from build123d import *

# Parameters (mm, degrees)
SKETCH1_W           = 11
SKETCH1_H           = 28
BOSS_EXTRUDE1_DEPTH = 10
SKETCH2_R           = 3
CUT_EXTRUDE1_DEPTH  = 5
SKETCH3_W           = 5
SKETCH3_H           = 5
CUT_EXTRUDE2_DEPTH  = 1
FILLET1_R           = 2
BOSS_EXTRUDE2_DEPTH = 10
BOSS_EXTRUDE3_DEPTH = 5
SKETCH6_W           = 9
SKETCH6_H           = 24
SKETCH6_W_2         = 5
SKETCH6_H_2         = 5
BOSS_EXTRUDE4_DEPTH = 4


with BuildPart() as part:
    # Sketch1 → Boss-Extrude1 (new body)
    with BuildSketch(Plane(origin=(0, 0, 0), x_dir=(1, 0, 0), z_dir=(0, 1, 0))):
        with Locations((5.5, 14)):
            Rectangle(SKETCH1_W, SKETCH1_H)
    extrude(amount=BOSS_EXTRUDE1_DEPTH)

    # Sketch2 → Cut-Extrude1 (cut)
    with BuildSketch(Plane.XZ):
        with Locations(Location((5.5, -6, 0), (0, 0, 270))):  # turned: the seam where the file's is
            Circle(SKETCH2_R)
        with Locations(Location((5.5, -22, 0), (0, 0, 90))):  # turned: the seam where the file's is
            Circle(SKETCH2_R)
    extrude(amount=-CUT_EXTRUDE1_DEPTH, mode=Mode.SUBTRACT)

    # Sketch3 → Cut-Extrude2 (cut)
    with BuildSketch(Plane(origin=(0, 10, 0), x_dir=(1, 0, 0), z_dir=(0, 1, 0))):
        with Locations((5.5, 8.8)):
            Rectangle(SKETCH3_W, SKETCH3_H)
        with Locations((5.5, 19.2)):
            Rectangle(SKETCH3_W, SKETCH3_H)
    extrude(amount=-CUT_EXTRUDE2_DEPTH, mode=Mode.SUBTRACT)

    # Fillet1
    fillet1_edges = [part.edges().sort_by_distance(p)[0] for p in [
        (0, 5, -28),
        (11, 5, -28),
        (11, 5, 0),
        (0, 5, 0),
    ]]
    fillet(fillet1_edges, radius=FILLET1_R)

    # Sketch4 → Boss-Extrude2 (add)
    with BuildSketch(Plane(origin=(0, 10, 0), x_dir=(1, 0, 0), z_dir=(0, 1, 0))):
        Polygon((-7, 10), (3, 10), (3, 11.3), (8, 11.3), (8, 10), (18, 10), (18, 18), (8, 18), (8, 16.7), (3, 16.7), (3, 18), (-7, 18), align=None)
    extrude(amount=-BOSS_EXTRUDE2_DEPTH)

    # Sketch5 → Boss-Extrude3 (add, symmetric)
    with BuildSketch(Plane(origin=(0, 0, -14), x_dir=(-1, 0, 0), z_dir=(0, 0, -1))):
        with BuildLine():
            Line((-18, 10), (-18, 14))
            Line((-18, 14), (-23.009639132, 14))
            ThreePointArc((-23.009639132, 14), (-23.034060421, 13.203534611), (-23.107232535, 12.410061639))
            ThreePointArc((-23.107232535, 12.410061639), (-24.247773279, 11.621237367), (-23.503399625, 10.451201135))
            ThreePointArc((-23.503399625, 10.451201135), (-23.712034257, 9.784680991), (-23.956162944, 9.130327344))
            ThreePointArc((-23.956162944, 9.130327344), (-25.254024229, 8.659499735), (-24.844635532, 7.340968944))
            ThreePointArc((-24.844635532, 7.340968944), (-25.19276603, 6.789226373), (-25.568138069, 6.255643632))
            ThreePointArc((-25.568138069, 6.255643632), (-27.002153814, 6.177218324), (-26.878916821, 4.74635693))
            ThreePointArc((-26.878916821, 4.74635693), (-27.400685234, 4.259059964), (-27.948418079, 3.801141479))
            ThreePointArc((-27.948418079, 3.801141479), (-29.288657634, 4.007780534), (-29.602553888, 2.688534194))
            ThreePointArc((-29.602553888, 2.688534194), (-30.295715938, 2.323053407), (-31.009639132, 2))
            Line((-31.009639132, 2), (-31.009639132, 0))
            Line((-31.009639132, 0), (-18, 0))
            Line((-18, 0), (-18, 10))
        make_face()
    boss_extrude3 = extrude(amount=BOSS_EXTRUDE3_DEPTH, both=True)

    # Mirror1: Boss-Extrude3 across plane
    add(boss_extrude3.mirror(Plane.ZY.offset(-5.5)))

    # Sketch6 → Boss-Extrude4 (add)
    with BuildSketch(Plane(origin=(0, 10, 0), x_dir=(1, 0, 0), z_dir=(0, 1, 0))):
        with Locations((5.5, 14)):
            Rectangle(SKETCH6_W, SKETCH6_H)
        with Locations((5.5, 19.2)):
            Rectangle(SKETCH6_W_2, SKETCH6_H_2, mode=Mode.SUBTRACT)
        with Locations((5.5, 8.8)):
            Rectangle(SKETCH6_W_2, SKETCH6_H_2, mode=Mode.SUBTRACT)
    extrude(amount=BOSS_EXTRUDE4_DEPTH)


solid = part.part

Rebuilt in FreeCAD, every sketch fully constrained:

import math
import FreeCAD as App
import Part
import Sketcher

V = App.Vector
Q = App.Units.Quantity


def edges_at(feature, points):
    """Names of the edges that pass closest to the given points."""
    edges = feature.Shape.Edges
    near = lambda p: min(range(len(edges)), key=lambda i: edges[i].distToShape(Part.Vertex(*p))[0])
    return sorted({f"Edge{near(p) + 1}" for p in points})

doc = App.newDocument("Part")
body = doc.addObject("PartDesign::Body", "Body")

# Sketch on XZ plane
sketch1 = doc.addObject("Sketcher::SketchObject", "Sketch")
body.addObject(sketch1)
sketch1.AttachmentSupport = (doc.XZ_Plane, [""])
sketch1.MapMode = "FlatFace"
sketch1.addGeometry([
    Part.LineSegment(V(0, -28, 0), V(0, 0, 0)),
    Part.LineSegment(V(0, 0, 0), V(11, 0, 0)),
    Part.LineSegment(V(11, 0, 0), V(11, -28, 0)),
    Part.LineSegment(V(11, -28, 0), V(0, -28, 0)),
], False)
sketch1.addConstraint([
    Sketcher.Constraint("Coincident", 0, 2, 1, 1),
    Sketcher.Constraint("Coincident", 1, 2, 2, 1),
    Sketcher.Constraint("Coincident", 2, 2, 3, 1),
    Sketcher.Constraint("Coincident", 3, 2, 0, 1),
    Sketcher.Constraint("Vertical", 0),
    Sketcher.Constraint("Horizontal", 1),
    Sketcher.Constraint("Vertical", 2),
    Sketcher.Constraint("Horizontal", 3),
    Sketcher.Constraint("Coincident", 0, 2, -1, 1),
    Sketcher.Constraint("DistanceX", 1, 1, 1, 2, Q("11 mm")),
    Sketcher.Constraint("DistanceY", 0, 1, 0, 2, Q("28 mm")),
])
pad1 = doc.addObject("PartDesign::Pad", "Pad")
body.addObject(pad1)
pad1.Profile = sketch1
pad1.Length = 10
pad1.Reversed = True

# Sketch on XZ plane
sketch2 = doc.addObject("Sketcher::SketchObject", "Sketch001")
body.addObject(sketch2)
sketch2.AttachmentSupport = (doc.XZ_Plane, [""])
sketch2.MapMode = "FlatFace"
sketch2.addGeometry([
    Part.Circle(V(5.5, -6, 0), V(0, 0, 1), 3),
    Part.Circle(V(5.5, -22, 0), V(0, 0, 1), 3),
], False)
sketch2.addConstraint([
    Sketcher.Constraint("Equal", 0, 1),
    Sketcher.Constraint("Vertical", 0, 3, 1, 3),
    Sketcher.Constraint("Diameter", 0, Q("6 mm")),
    Sketcher.Constraint("DistanceY", 0, 3, -1, 1, Q("6 mm")),
    Sketcher.Constraint("DistanceY", 1, 3, -1, 1, Q("22 mm")),
    Sketcher.Constraint("DistanceX", -1, 1, 0, 3, Q("5.5 mm")),
])
pocket1 = doc.addObject("PartDesign::Pocket", "Pocket")
body.addObject(pocket1)
pocket1.Profile = sketch2
pocket1.Length = 5

# Sketch on XZ plane
sketch3 = doc.addObject("Sketcher::SketchObject", "Sketch002")
body.addObject(sketch3)
sketch3.AttachmentSupport = (doc.XZ_Plane, [""])
sketch3.MapMode = "FlatFace"
sketch3.AttachmentOffset = App.Placement(V(0, 0, -10), App.Rotation())
sketch3.addGeometry([
    Part.LineSegment(V(3, -11, 0), V(3, -6, 0)),  # 0
    Part.LineSegment(V(3, -6, 0), V(8, -6, 0)),  # 1
    Part.LineSegment(V(8, -6, 0), V(8, -11, 0)),  # 2
    Part.LineSegment(V(8, -11, 0), V(3, -11, 0)),  # 3
    Part.LineSegment(V(3, -22, 0), V(3, -17, 0)),  # 4
    Part.LineSegment(V(3, -17, 0), V(8, -17, 0)),  # 5
    Part.LineSegment(V(8, -17, 0), V(8, -22, 0)),  # 6
    Part.LineSegment(V(8, -22, 0), V(3, -22, 0)),  # 7
], False)
sketch3.addConstraint([
    Sketcher.Constraint("Coincident", 0, 2, 1, 1),
    Sketcher.Constraint("Coincident", 1, 2, 2, 1),
    Sketcher.Constraint("Coincident", 2, 2, 3, 1),
    Sketcher.Constraint("Coincident", 3, 2, 0, 1),
    Sketcher.Constraint("Coincident", 4, 2, 5, 1),
    Sketcher.Constraint("Coincident", 5, 2, 6, 1),
    Sketcher.Constraint("Coincident", 6, 2, 7, 1),
    Sketcher.Constraint("Coincident", 7, 2, 4, 1),
    Sketcher.Constraint("Vertical", 0),
    Sketcher.Constraint("Horizontal", 1),
    Sketcher.Constraint("Vertical", 2),
    Sketcher.Constraint("Horizontal", 3),
    Sketcher.Constraint("Vertical", 4),
    Sketcher.Constraint("Horizontal", 5),
    Sketcher.Constraint("Vertical", 6),
    Sketcher.Constraint("Horizontal", 7),
    Sketcher.Constraint("Vertical", 3, 2, 4, 2),
    Sketcher.Constraint("Vertical", 2, 2, 5, 2),
    Sketcher.Constraint("Equal", 7, 0),
    Sketcher.Constraint("Equal", 2, 4),
    Sketcher.Constraint("DistanceX", 1, 1, 1, 2, Q("5 mm")),
    Sketcher.Constraint("DistanceX", -1, 1, 0, 2, Q("3 mm")),
    Sketcher.Constraint("DistanceY", 0, 2, -1, 1, Q("6.3 mm")),
    Sketcher.Constraint("DistanceY", 4, 2, -1, 1, Q("16.7 mm")),
])
pocket2 = doc.addObject("PartDesign::Pocket", "Pocket001")
body.addObject(pocket2)
pocket2.Profile = sketch3
pocket2.Length = 1
pocket2.Reversed = True
doc.recompute()

fillet = doc.addObject("PartDesign::Fillet", "Fillet")
body.addObject(fillet)
fillet.Base = (pocket2, edges_at(pocket2, [
    (0, 5, -28),
    (11, 5, -28),
    (11, 5, 0),
    (0, 5, 0),
]))
fillet.Radius = 2

# Sketch on XZ plane
sketch4 = doc.addObject("Sketcher::SketchObject", "Sketch003")
body.addObject(sketch4)
sketch4.AttachmentSupport = (doc.XZ_Plane, [""])
sketch4.MapMode = "FlatFace"
sketch4.AttachmentOffset = App.Placement(V(0, 0, -10), App.Rotation())
sketch4.addGeometry([
    Part.LineSegment(V(-7, -10, 0), V(3, -10, 0)),  # 0
    Part.LineSegment(V(3, -10, 0), V(3, -11.3, 0)),  # 1
    Part.LineSegment(V(3, -11.3, 0), V(8, -11.3, 0)),  # 2
    Part.LineSegment(V(8, -11.3, 0), V(8, -10, 0)),  # 3
    Part.LineSegment(V(8, -10, 0), V(18, -10, 0)),  # 4
    Part.LineSegment(V(18, -10, 0), V(18, -18, 0)),  # 5
    Part.LineSegment(V(18, -18, 0), V(8, -18, 0)),  # 6
    Part.LineSegment(V(8, -18, 0), V(8, -16.7, 0)),  # 7
    Part.LineSegment(V(8, -16.7, 0), V(3, -16.7, 0)),  # 8
    Part.LineSegment(V(3, -16.7, 0), V(3, -18, 0)),  # 9
    Part.LineSegment(V(3, -18, 0), V(-7, -18, 0)),  # 10
    Part.LineSegment(V(-7, -18, 0), V(-7, -10, 0)),  # 11
], False)
sketch4.addConstraint([
    Sketcher.Constraint("Coincident", 0, 2, 1, 1),
    Sketcher.Constraint("Coincident", 1, 2, 2, 1),
    Sketcher.Constraint("Coincident", 2, 2, 3, 1),
    Sketcher.Constraint("Coincident", 3, 2, 4, 1),
    Sketcher.Constraint("Coincident", 4, 2, 5, 1),
    Sketcher.Constraint("Coincident", 5, 2, 6, 1),
    Sketcher.Constraint("Coincident", 6, 2, 7, 1),
    Sketcher.Constraint("Coincident", 7, 2, 8, 1),
    Sketcher.Constraint("Coincident", 8, 2, 9, 1),
    Sketcher.Constraint("Coincident", 9, 2, 10, 1),
    Sketcher.Constraint("Coincident", 10, 2, 11, 1),
    Sketcher.Constraint("Coincident", 11, 2, 0, 1),
    Sketcher.Constraint("Horizontal", 0),
    Sketcher.Constraint("Vertical", 1),
    Sketcher.Constraint("Horizontal", 2),
    Sketcher.Constraint("Vertical", 3),
    Sketcher.Constraint("Horizontal", 4),
    Sketcher.Constraint("Vertical", 5),
    Sketcher.Constraint("Horizontal", 6),
    Sketcher.Constraint("Vertical", 7),
    Sketcher.Constraint("Horizontal", 8),
    Sketcher.Constraint("Vertical", 9),
    Sketcher.Constraint("Horizontal", 10),
    Sketcher.Constraint("Vertical", 11),
    Sketcher.Constraint("Horizontal", 0, 2, 3, 2),
    Sketcher.Constraint("Horizontal", 6, 2, 9, 2),
    Sketcher.Constraint("Vertical", 3, 2, 6, 2),
    Sketcher.Constraint("Vertical", 1, 2, 8, 2),
    Sketcher.Constraint("Equal", 0, 4),
    Sketcher.Constraint("Equal", 3, 7),
    Sketcher.Constraint("DistanceX", 0, 1, 0, 2, Q("10 mm")),
    Sketcher.Constraint("DistanceX", 2, 1, 2, 2, Q("5 mm")),
    Sketcher.Constraint("DistanceY", 5, 2, 5, 1, Q("8 mm")),
    Sketcher.Constraint("DistanceY", 1, 2, 1, 1, Q("1.3 mm")),
    Sketcher.Constraint("DistanceX", -1, 1, 0, 2, Q("3 mm")),
    Sketcher.Constraint("DistanceY", 0, 2, -1, 1, Q("10 mm")),
])
pad2 = doc.addObject("PartDesign::Pad", "Pad001")
body.addObject(pad2)
pad2.Profile = sketch4
pad2.Length = 10

# Sketch on XY plane
sketch5 = doc.addObject("Sketcher::SketchObject", "Sketch004")
body.addObject(sketch5)
sketch5.AttachmentSupport = (doc.XY_Plane, [""])
sketch5.MapMode = "FlatFace"
sketch5.AttachmentOffset = App.Placement(V(0, 0, -14), App.Rotation())
sketch5.addGeometry([
    Part.LineSegment(V(18, 14, 0), V(23, 14, 0)),  # 0
    Part.ArcOfCircle(Part.Circle(V(36, 14, 0), V(0, 0, 1), 13), math.radians(180), math.radians(187.03)),  # 1
    Part.ArcOfCircle(Part.Circle(V(23.3, 11.4, 0), V(0, 0, 1), 1), math.radians(-76), math.radians(99)),  # 2
    Part.ArcOfCircle(Part.Circle(V(36, 14, 0), V(0, 0, 1), 13), math.radians(-164.16), math.radians(-158)),  # 3
    Part.ArcOfCircle(Part.Circle(V(24.4, 8.2, 0), V(0, 0, 1), 1), math.radians(-61), math.radians(114)),  # 4
    Part.ArcOfCircle(Part.Circle(V(36, 14, 0), V(0, 0, 1), 13), math.radians(-149.19), math.radians(-143.44)),  # 5
    Part.ArcOfCircle(Part.Circle(V(26.2, 5.5, 0), V(0, 0, 1), 1), math.radians(-51), math.radians(133)),  # 6
    Part.ArcOfCircle(Part.Circle(V(36, 14, 0), V(0, 0, 1), 13), math.radians(-134.62), math.radians(-128.32)),  # 7
    Part.ArcOfCircle(Part.Circle(V(28.7, 3.2, 0), V(0, 0, 1), 1), math.radians(-29), math.radians(141)),  # 8
    Part.ArcOfCircle(Part.Circle(V(36, 14, 0), V(0, 0, 1), 13), math.radians(-119.53), math.radians(-112.62)),  # 9
    Part.LineSegment(V(31, 2, 0), V(31, 0, 0)),  # 10
    Part.LineSegment(V(31, 0, 0), V(18, 0, 0)),  # 11
    Part.LineSegment(V(18, 0, 0), V(18, 14, 0)),  # 12
], False)
sketch5.addConstraint([
    Sketcher.Constraint("Coincident", 0, 2, 1, 1),
    Sketcher.Constraint("Coincident", 1, 2, 2, 2),
    Sketcher.Constraint("Coincident", 2, 1, 3, 1),
    Sketcher.Constraint("Coincident", 3, 2, 4, 2),
    Sketcher.Constraint("Coincident", 4, 1, 5, 1),
    Sketcher.Constraint("Coincident", 5, 2, 6, 2),
    Sketcher.Constraint("Coincident", 6, 1, 7, 1),
    Sketcher.Constraint("Coincident", 7, 2, 8, 2),
    Sketcher.Constraint("Coincident", 8, 1, 9, 1),
    Sketcher.Constraint("Coincident", 9, 2, 10, 1),
    Sketcher.Constraint("Coincident", 10, 2, 11, 1),
    Sketcher.Constraint("Coincident", 11, 2, 12, 1),
    Sketcher.Constraint("Coincident", 12, 2, 0, 1),
    Sketcher.Constraint("Horizontal", 0),
    Sketcher.Constraint("Vertical", 10),
    Sketcher.Constraint("Horizontal", 11),
    Sketcher.Constraint("Vertical", 12),
    Sketcher.Constraint("Coincident", 3, 3, 1, 3),
    Sketcher.Constraint("Coincident", 5, 3, 1, 3),
    Sketcher.Constraint("Coincident", 7, 3, 1, 3),
    Sketcher.Constraint("Coincident", 9, 3, 1, 3),
    Sketcher.Constraint("Equal", 1, 3),
    Sketcher.Constraint("Equal", 2, 4),
    Sketcher.Constraint("Equal", 3, 5),
    Sketcher.Constraint("Equal", 4, 6),
    Sketcher.Constraint("Equal", 5, 7),
    Sketcher.Constraint("Equal", 6, 8),
    Sketcher.Constraint("Equal", 7, 9),
    Sketcher.Constraint("PointOnObject", 10, 2, -1),
    Sketcher.Constraint("Horizontal", 9, 3, 0, 2),
    Sketcher.Constraint("Radius", 1, Q("13 mm")),
    Sketcher.Constraint("Radius", 2, Q("1 mm")),
    Sketcher.Constraint("DistanceY", 10, 2, 10, 1, Q("2 mm")),
    Sketcher.Constraint("DistanceY", 12, 1, 12, 2, Q("14 mm")),
    Sketcher.Constraint("DistanceX", -1, 1, 11, 2, Q("18 mm")),
    Sketcher.Constraint("DistanceX", 0, 1, 0, 2, Q("5.009639 mm")),
    Sketcher.Constraint("DistanceX", -1, 1, 2, 1, Q("23.5034 mm")),
    Sketcher.Constraint("DistanceY", 6, 3, 2, 3, Q("5.901499 mm")),
    Sketcher.Constraint("DistanceX", 6, 3, 8, 3, Q("2.4834 mm")),
    Sketcher.Constraint("DistanceX", 6, 3, 9, 3, Q("9.762498 mm")),
    Sketcher.Constraint("DistanceX", 6, 1, 7, 2, Q("1.069501 mm")),
    Sketcher.Constraint("DistanceY", -1, 1, 6, 3, Q("5.521508 mm")),
    Sketcher.Constraint("DistanceY", -1, 1, 4, 1, Q("7.340969 mm")),
    Sketcher.Constraint("DistanceX", 2, 3, 4, 3, Q("1.09074 mm")),
])
pad3 = doc.addObject("PartDesign::Pad", "Pad002")
body.addObject(pad3)
pad3.Profile = sketch5
pad3.Length = 10
pad3.Midplane = True
doc.recompute()

datumplane = doc.addObject("PartDesign::Plane", "DatumPlane")
body.addObject(datumplane)
datumplane.AttachmentSupport = (doc.YZ_Plane, [""])
datumplane.MapMode = "FlatFace"
datumplane.AttachmentOffset = App.Placement(V(0, 0, 5.5), App.Rotation())
mirrored = doc.addObject("PartDesign::Mirrored", "Mirrored")
body.addObject(mirrored)
mirrored.Originals = [pad3]
mirrored.MirrorPlane = (datumplane, [""])
body.Tip = mirrored

# Sketch on XZ plane
sketch6 = doc.addObject("Sketcher::SketchObject", "Sketch005")
body.addObject(sketch6)
sketch6.AttachmentSupport = (doc.XZ_Plane, [""])
sketch6.MapMode = "FlatFace"
sketch6.AttachmentOffset = App.Placement(V(0, 0, -10), App.Rotation())
sketch6.addGeometry([
    Part.LineSegment(V(1, -26, 0), V(1, -2, 0)),  # 0
    Part.LineSegment(V(1, -2, 0), V(10, -2, 0)),  # 1
    Part.LineSegment(V(10, -2, 0), V(10, -26, 0)),  # 2
    Part.LineSegment(V(10, -26, 0), V(1, -26, 0)),  # 3
    Part.LineSegment(V(8, -6, 0), V(3, -6, 0)),  # 4
    Part.LineSegment(V(3, -6, 0), V(3, -11, 0)),  # 5
    Part.LineSegment(V(3, -11, 0), V(8, -11, 0)),  # 6
    Part.LineSegment(V(8, -11, 0), V(8, -6, 0)),  # 7
    Part.LineSegment(V(8, -17, 0), V(3, -17, 0)),  # 8
    Part.LineSegment(V(3, -17, 0), V(3, -22, 0)),  # 9
    Part.LineSegment(V(3, -22, 0), V(8, -22, 0)),  # 10
    Part.LineSegment(V(8, -22, 0), V(8, -17, 0)),  # 11
], False)
sketch6.addConstraint([
    Sketcher.Constraint("Coincident", 0, 2, 1, 1),
    Sketcher.Constraint("Coincident", 1, 2, 2, 1),
    Sketcher.Constraint("Coincident", 2, 2, 3, 1),
    Sketcher.Constraint("Coincident", 3, 2, 0, 1),
    Sketcher.Constraint("Coincident", 4, 2, 5, 1),
    Sketcher.Constraint("Coincident", 5, 2, 6, 1),
    Sketcher.Constraint("Coincident", 6, 2, 7, 1),
    Sketcher.Constraint("Coincident", 7, 2, 4, 1),
    Sketcher.Constraint("Coincident", 8, 2, 9, 1),
    Sketcher.Constraint("Coincident", 9, 2, 10, 1),
    Sketcher.Constraint("Coincident", 10, 2, 11, 1),
    Sketcher.Constraint("Coincident", 11, 2, 8, 1),
    Sketcher.Constraint("Vertical", 0),
    Sketcher.Constraint("Horizontal", 1),
    Sketcher.Constraint("Vertical", 2),
    Sketcher.Constraint("Horizontal", 3),
    Sketcher.Constraint("Horizontal", 4),
    Sketcher.Constraint("Vertical", 5),
    Sketcher.Constraint("Horizontal", 6),
    Sketcher.Constraint("Vertical", 7),
    Sketcher.Constraint("Horizontal", 8),
    Sketcher.Constraint("Vertical", 9),
    Sketcher.Constraint("Horizontal", 10),
    Sketcher.Constraint("Vertical", 11),
    Sketcher.Constraint("Vertical", 5, 2, 8, 2),
    Sketcher.Constraint("Vertical", 7, 2, 10, 2),
    Sketcher.Constraint("Equal", 10, 5),
    Sketcher.Constraint("Equal", 7, 9),
    Sketcher.Constraint("DistanceX", 1, 1, 1, 2, Q("9 mm")),
    Sketcher.Constraint("DistanceX", 4, 2, 4, 1, Q("5 mm")),
    Sketcher.Constraint("DistanceY", 0, 1, 0, 2, Q("24 mm")),
    Sketcher.Constraint("DistanceX", -1, 1, 0, 2, Q("1 mm")),
    Sketcher.Constraint("DistanceY", 0, 2, -1, 1, Q("2 mm")),
    Sketcher.Constraint("DistanceX", -1, 1, 4, 2, Q("3 mm")),
    Sketcher.Constraint("DistanceY", 4, 2, -1, 1, Q("6.3 mm")),
    Sketcher.Constraint("DistanceY", 8, 2, -1, 1, Q("16.7 mm")),
])
pad4 = doc.addObject("PartDesign::Pad", "Pad003")
body.addObject(pad4)
pad4.Profile = sketch6
pad4.Length = 4
pad4.Reversed = True

doc.recompute()
